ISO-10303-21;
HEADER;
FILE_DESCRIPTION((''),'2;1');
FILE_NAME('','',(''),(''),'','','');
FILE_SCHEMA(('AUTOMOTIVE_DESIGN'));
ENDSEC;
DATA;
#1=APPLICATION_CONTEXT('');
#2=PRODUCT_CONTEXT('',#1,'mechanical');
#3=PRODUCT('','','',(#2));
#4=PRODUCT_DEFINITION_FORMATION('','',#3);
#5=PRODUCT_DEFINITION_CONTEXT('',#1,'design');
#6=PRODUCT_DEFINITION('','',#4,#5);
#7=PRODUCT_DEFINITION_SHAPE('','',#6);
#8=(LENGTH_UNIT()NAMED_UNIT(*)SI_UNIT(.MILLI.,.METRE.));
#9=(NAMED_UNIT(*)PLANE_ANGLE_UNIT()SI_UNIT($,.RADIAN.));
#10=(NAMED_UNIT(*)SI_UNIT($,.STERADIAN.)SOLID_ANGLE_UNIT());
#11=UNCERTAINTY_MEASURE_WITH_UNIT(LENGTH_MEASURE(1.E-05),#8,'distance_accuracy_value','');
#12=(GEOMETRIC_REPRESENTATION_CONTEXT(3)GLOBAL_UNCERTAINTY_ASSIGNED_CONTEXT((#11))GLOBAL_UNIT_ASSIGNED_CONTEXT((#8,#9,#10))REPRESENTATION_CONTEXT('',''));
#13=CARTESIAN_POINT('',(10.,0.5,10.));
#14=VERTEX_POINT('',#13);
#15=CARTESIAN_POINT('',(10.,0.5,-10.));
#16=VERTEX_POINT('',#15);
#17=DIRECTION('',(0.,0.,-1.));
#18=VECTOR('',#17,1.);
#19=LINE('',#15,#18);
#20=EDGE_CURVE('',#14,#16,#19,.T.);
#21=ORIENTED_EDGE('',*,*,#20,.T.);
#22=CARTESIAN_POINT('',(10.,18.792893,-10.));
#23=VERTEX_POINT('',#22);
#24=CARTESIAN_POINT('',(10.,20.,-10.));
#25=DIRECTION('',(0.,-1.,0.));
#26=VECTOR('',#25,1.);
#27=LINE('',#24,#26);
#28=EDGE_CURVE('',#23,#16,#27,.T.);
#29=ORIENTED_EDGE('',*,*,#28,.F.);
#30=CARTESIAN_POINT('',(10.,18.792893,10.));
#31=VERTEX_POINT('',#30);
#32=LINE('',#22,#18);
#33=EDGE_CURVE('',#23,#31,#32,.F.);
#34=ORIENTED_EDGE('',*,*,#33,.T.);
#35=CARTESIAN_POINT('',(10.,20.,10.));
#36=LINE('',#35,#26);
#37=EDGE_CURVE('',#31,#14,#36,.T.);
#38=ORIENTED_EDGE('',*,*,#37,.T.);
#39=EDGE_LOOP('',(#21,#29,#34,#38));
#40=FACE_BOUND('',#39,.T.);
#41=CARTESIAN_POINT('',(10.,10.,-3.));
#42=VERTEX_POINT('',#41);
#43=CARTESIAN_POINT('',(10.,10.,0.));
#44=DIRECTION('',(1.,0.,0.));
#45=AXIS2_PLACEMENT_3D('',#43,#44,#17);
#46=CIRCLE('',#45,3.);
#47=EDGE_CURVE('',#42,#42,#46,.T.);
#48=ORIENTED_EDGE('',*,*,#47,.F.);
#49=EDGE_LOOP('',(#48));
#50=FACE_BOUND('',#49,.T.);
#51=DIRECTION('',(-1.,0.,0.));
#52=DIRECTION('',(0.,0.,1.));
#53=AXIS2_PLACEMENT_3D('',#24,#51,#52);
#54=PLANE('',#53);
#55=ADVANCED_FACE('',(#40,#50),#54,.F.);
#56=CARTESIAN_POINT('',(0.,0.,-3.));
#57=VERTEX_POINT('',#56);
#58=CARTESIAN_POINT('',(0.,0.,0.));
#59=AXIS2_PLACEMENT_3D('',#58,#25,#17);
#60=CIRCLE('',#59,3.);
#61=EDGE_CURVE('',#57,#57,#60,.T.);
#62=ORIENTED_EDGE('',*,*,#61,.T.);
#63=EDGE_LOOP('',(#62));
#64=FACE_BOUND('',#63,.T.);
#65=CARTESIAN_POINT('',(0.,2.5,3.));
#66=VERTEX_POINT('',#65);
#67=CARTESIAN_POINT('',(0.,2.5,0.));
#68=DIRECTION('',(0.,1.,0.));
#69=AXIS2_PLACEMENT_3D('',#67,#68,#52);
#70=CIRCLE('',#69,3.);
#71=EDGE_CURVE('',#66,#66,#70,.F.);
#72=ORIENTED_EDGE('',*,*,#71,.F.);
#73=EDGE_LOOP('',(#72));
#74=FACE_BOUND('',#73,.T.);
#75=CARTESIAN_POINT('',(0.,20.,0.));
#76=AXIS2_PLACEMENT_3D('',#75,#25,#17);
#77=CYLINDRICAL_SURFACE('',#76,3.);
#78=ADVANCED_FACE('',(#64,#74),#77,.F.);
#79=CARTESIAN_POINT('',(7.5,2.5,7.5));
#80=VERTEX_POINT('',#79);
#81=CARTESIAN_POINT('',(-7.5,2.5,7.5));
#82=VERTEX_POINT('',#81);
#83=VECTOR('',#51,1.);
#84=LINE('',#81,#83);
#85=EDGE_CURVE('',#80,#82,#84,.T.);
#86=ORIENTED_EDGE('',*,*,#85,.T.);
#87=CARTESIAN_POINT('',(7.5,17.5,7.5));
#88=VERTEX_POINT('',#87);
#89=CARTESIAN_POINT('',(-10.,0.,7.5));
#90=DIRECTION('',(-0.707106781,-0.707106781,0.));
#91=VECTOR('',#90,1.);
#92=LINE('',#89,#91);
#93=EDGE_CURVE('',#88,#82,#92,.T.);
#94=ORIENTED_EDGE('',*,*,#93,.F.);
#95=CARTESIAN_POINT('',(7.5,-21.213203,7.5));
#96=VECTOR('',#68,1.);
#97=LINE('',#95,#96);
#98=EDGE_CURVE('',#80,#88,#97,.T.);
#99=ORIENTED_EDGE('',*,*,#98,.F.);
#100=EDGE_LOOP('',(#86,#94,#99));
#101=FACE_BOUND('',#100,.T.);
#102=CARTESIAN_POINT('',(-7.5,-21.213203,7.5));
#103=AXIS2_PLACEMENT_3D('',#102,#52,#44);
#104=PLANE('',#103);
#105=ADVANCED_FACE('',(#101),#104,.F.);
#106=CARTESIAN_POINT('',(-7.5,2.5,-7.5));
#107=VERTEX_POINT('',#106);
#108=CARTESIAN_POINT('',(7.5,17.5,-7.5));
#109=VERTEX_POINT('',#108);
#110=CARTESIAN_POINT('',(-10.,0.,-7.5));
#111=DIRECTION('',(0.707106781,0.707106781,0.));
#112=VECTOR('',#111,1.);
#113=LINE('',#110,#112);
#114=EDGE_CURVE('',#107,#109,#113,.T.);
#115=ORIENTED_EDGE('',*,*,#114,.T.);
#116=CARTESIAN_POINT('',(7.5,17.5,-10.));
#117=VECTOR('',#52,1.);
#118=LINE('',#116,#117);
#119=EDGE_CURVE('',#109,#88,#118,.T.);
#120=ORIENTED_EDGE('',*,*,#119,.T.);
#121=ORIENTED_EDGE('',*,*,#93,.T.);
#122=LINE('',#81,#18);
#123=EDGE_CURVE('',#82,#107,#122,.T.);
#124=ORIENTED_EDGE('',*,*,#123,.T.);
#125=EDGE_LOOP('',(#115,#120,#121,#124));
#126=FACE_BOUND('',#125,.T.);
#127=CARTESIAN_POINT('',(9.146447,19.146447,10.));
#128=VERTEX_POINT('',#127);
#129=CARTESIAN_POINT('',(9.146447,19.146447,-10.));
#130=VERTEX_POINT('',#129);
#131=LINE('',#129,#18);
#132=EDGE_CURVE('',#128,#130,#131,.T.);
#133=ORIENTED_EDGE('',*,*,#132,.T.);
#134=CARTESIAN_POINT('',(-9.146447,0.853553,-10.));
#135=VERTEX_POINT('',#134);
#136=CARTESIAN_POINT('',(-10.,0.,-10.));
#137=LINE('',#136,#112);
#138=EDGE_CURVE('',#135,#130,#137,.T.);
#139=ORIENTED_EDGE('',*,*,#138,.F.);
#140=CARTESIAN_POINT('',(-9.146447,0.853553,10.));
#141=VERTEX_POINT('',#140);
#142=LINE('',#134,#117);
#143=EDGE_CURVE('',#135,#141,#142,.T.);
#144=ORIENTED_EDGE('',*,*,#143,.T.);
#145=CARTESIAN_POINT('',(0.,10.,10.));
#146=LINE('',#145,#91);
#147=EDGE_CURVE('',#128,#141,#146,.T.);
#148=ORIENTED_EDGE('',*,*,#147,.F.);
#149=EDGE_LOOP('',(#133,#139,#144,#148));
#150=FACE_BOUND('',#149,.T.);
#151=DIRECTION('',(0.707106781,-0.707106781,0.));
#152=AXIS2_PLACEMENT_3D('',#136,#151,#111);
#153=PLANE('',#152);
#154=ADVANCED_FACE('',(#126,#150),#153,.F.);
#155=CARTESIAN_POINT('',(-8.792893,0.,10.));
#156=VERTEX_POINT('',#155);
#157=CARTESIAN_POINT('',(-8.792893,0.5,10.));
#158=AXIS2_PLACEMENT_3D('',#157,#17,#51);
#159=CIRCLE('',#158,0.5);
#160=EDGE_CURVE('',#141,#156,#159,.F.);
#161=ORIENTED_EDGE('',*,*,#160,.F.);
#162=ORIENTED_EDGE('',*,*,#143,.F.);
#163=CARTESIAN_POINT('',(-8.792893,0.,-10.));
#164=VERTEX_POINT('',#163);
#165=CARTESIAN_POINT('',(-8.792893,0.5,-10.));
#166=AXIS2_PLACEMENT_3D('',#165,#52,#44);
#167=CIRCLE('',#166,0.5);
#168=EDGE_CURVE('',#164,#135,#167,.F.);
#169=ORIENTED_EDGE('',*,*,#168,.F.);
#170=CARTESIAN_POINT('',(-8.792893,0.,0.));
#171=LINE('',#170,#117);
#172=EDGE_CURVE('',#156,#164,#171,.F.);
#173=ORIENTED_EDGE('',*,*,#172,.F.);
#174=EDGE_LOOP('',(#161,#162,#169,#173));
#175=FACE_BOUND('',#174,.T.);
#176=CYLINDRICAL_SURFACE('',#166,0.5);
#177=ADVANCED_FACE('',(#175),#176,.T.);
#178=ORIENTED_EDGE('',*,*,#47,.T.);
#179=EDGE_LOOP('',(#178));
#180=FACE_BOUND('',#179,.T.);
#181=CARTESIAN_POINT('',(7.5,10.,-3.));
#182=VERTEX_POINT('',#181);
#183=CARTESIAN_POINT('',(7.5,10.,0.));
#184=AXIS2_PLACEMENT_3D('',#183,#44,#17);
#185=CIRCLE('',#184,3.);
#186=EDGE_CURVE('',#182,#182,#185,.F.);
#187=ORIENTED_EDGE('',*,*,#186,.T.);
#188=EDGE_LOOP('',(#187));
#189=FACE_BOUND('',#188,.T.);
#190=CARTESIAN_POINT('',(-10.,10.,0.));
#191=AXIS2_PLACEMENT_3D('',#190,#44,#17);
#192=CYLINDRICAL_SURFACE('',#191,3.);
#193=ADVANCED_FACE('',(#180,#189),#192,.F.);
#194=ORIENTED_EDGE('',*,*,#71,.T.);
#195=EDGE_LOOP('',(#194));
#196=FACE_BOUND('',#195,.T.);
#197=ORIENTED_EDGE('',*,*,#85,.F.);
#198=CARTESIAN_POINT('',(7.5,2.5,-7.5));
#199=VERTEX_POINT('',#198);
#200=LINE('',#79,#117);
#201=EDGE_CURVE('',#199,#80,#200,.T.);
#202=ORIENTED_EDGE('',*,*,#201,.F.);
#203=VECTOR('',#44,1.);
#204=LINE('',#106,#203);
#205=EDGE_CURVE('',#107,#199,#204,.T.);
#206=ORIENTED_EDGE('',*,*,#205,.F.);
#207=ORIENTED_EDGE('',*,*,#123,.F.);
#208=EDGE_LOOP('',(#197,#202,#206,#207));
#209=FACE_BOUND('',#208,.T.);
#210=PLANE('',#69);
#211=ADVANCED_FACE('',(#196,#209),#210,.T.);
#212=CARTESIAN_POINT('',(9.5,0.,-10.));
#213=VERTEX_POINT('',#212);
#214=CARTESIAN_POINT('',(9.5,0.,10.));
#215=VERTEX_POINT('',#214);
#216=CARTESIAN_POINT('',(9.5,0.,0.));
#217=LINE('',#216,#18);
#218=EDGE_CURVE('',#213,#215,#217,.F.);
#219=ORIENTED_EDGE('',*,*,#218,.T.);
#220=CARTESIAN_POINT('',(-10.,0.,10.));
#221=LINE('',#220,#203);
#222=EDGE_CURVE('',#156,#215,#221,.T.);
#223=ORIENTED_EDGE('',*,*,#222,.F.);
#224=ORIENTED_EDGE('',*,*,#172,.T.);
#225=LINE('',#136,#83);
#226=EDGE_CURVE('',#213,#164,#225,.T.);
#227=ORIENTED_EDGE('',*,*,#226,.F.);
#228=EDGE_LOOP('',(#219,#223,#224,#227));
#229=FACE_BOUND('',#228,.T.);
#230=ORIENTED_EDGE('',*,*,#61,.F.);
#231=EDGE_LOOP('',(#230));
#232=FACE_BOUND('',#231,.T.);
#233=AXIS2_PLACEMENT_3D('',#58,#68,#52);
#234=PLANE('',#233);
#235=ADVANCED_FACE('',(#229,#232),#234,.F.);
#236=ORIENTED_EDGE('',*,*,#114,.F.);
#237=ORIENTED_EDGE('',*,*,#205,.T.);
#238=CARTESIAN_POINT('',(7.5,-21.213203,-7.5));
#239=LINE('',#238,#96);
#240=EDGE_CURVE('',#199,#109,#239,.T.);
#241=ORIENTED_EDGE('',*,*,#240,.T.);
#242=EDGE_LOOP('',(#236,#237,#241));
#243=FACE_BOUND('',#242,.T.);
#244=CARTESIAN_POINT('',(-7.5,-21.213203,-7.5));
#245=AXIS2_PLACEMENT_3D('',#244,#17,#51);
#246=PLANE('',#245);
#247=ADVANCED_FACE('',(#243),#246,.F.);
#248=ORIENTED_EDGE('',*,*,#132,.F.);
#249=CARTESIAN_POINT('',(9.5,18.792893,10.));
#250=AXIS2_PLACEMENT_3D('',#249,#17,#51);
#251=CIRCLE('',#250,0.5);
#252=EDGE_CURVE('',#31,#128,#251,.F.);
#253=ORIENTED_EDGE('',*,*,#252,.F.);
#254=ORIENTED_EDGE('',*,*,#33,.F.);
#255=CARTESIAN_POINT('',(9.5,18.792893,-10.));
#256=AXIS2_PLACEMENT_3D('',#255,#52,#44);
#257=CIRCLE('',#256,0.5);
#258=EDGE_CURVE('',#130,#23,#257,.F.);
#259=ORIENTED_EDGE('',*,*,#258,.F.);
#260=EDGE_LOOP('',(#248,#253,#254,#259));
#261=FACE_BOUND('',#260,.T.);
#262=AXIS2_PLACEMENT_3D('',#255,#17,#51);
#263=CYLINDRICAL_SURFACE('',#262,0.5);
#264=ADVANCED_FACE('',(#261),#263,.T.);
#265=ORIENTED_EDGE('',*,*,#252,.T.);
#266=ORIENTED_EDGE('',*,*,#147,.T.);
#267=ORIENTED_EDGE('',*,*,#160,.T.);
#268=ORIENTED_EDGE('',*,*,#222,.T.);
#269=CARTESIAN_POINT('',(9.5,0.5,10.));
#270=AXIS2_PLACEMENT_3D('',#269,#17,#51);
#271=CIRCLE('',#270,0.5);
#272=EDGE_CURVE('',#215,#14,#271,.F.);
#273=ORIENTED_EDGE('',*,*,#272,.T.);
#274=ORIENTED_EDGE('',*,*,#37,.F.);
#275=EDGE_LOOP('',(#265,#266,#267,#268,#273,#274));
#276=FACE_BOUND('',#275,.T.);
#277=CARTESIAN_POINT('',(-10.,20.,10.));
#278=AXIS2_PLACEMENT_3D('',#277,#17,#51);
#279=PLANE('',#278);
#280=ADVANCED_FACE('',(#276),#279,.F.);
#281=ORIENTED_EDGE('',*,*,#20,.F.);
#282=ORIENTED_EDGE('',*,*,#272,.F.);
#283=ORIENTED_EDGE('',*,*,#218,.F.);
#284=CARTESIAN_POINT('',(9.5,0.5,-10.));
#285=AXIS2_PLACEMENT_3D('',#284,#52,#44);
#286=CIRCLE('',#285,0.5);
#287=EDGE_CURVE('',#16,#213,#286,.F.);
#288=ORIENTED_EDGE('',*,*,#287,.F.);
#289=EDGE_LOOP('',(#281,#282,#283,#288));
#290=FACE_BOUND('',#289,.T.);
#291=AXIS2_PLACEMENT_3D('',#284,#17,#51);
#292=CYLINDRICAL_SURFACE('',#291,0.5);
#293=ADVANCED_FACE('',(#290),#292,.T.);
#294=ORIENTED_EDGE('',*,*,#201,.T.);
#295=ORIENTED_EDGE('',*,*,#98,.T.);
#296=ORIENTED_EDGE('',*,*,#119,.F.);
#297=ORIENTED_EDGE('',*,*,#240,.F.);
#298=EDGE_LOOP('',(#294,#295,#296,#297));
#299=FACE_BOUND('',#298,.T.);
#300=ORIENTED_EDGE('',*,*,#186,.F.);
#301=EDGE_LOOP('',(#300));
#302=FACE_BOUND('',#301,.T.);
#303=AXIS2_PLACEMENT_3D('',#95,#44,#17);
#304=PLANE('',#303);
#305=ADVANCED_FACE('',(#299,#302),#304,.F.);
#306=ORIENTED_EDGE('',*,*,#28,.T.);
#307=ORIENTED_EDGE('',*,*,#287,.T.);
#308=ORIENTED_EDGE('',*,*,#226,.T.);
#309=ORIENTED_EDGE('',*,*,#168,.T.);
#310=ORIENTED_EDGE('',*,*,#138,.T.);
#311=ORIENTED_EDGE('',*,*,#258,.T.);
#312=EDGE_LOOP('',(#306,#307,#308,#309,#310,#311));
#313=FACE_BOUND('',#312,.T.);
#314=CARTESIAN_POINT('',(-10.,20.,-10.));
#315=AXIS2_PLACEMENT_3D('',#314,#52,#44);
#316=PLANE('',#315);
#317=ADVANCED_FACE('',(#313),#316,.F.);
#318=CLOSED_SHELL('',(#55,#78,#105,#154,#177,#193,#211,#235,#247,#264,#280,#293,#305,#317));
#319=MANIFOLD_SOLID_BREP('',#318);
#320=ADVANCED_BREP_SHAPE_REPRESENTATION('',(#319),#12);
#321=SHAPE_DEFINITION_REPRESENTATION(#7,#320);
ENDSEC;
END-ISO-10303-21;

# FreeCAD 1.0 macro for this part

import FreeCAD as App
import Part
import Sketcher


def edges_at(feature, points):
    """Names of the edges that pass closest to the given points."""
    edges = feature.Shape.Edges
    near = lambda p: min(range(len(edges)), key=lambda i: edges[i].distToShape(Part.Vertex(*p))[0])
    return sorted({f"Edge{near(p) + 1}" for p in points})

doc = App.newDocument("Part")
body = doc.addObject("PartDesign::Body", "Body")

# Sketch on XZ plane
sketch1 = body.newObject("Sketcher::SketchObject", "Sketch")
sketch1.AttachmentSupport = (doc.getObject("XZ_Plane"), [""])
sketch1.MapMode = "FlatFace"
sketch1.addGeometry([
    Part.LineSegment(App.Vector(-10, -10, 0), App.Vector(-10, 10, 0)),
    Part.LineSegment(App.Vector(-10, 10, 0), App.Vector(10, 10, 0)),
    Part.LineSegment(App.Vector(10, 10, 0), App.Vector(10, -10, 0)),
    Part.LineSegment(App.Vector(10, -10, 0), App.Vector(-10, -10, 0)),
], False)
sketch1.addConstraint([
    Sketcher.Constraint("Coincident", 0, 2, 1, 1),
    Sketcher.Constraint("Coincident", 1, 2, 2, 1),
    Sketcher.Constraint("Coincident", 2, 2, 3, 1),
    Sketcher.Constraint("Coincident", 3, 2, 0, 1),
    Sketcher.Constraint("Vertical", 0),
    Sketcher.Constraint("Horizontal", 1),
    Sketcher.Constraint("Vertical", 2),
    Sketcher.Constraint("Horizontal", 3),
    Sketcher.Constraint("Symmetric", 0, 2, 2, 2, -1, 1),
    Sketcher.Constraint("Equal", 3, 0),
    Sketcher.Constraint("DistanceX", 1, 1, 1, 2, 20.0),
])
pad1 = body.newObject("PartDesign::Pad", "Pad")
pad1.Profile = sketch1
pad1.Length = 20
pad1.Reversed = True

# Sketch on XY plane
sketch2 = body.newObject("Sketcher::SketchObject", "Sketch001")
sketch2.AttachmentSupport = (doc.getObject("XY_Plane"), [""])
sketch2.MapMode = "FlatFace"
sketch2.AttachmentOffset = App.Placement(App.Vector(0, 0, 10), App.Rotation())
sketch2.addGeometry([
    Part.LineSegment(App.Vector(-10, 0, 0), App.Vector(10, 20, 0)),
    Part.LineSegment(App.Vector(10, 20, 0), App.Vector(-10, 20, 0)),
    Part.LineSegment(App.Vector(-10, 20, 0), App.Vector(-10, 0, 0)),
], False)
sketch2.addConstraint([
    Sketcher.Constraint("Coincident", 0, 2, 1, 1),
    Sketcher.Constraint("Coincident", 1, 2, 2, 1),
    Sketcher.Constraint("Coincident", 2, 2, 0, 1),
    Sketcher.Constraint("Horizontal", 1),
    Sketcher.Constraint("Vertical", 2),
    Sketcher.Constraint("PointOnObject", 2, 2, -1),
    Sketcher.Constraint("Equal", 1, 2),
    Sketcher.Constraint("DistanceX", 1, 2, 1, 1, 20.0),
    Sketcher.Constraint("DistanceX", -1, 1, 0, 2, 10.0),
])
pocket1 = body.newObject("PartDesign::Pocket", "Pocket")
pocket1.Profile = sketch2
pocket1.Type = "ThroughAll"
pocket1.Midplane = True

# Sketch on YZ plane
sketch3 = body.newObject("Sketcher::SketchObject", "Sketch002")
sketch3.AttachmentSupport = (doc.getObject("YZ_Plane"), [""])
sketch3.MapMode = "FlatFace"
sketch3.AttachmentOffset = App.Placement(App.Vector(0, 0, 10), App.Rotation())
sketch3.addGeometry(Part.Circle(App.Vector(10, 0, 0), App.Vector(0, 0, 1), 3), False)
sketch3.addConstraint([
    Sketcher.Constraint("PointOnObject", 0, 3, -1),
    Sketcher.Constraint("Diameter", 0, 6.0),
    Sketcher.Constraint("DistanceX", -1, 1, 0, 3, 10.0),
])
pocket2 = body.newObject("PartDesign::Pocket", "Pocket001")
pocket2.Profile = sketch3
pocket2.Type = "ThroughAll"

# Sketch on XZ plane
sketch4 = body.newObject("Sketcher::SketchObject", "Sketch003")
sketch4.AttachmentSupport = (doc.getObject("XZ_Plane"), [""])
sketch4.MapMode = "FlatFace"
sketch4.addGeometry(Part.Circle(App.Vector(0, 0, 0), App.Vector(0, 0, 1), 3), False)
sketch4.addConstraint([
    Sketcher.Constraint("Coincident", 0, 3, -1, 1),
    Sketcher.Constraint("Diameter", 0, 6.0),
])
pocket3 = body.newObject("PartDesign::Pocket", "Pocket002")
pocket3.Profile = sketch4
pocket3.Type = "ThroughAll"

# Sketch on XZ plane
sketch5 = body.newObject("Sketcher::SketchObject", "Sketch004")
sketch5.AttachmentSupport = (doc.getObject("XZ_Plane"), [""])
sketch5.MapMode = "FlatFace"
sketch5.AttachmentOffset = App.Placement(App.Vector(0, 0, -20), App.Rotation())
sketch5.addGeometry([
    Part.LineSegment(App.Vector(-7.5, -7.5, 0), App.Vector(-7.5, 7.5, 0)),
    Part.LineSegment(App.Vector(-7.5, 7.5, 0), App.Vector(7.5, 7.5, 0)),
    Part.LineSegment(App.Vector(7.5, 7.5, 0), App.Vector(7.5, -7.5, 0)),
    Part.LineSegment(App.Vector(7.5, -7.5, 0), App.Vector(-7.5, -7.5, 0)),
], False)
sketch5.addConstraint([
    Sketcher.Constraint("Coincident", 0, 2, 1, 1),
    Sketcher.Constraint("Coincident", 1, 2, 2, 1),
    Sketcher.Constraint("Coincident", 2, 2, 3, 1),
    Sketcher.Constraint("Coincident", 3, 2, 0, 1),
    Sketcher.Constraint("Vertical", 0),
    Sketcher.Constraint("Horizontal", 1),
    Sketcher.Constraint("Vertical", 2),
    Sketcher.Constraint("Horizontal", 3),
    Sketcher.Constraint("Symmetric", 0, 2, 2, 2, -1, 1),
    Sketcher.Constraint("Equal", 3, 0),
    Sketcher.Constraint("DistanceX", 1, 1, 1, 2, 15.0),
])
pocket4 = body.newObject("PartDesign::Pocket", "Pocket003")
pocket4.Profile = sketch5
pocket4.Length = 17.5
pocket4.Reversed = True
doc.recompute()

fillet = body.newObject("PartDesign::Fillet", "Fillet")
fillet.Base = (pocket4, edges_at(pocket4, [(10, 20, 0), (-10, 0, 0), (10, 0, 0)]))
fillet.Radius = 0.5

doc.recompute()
